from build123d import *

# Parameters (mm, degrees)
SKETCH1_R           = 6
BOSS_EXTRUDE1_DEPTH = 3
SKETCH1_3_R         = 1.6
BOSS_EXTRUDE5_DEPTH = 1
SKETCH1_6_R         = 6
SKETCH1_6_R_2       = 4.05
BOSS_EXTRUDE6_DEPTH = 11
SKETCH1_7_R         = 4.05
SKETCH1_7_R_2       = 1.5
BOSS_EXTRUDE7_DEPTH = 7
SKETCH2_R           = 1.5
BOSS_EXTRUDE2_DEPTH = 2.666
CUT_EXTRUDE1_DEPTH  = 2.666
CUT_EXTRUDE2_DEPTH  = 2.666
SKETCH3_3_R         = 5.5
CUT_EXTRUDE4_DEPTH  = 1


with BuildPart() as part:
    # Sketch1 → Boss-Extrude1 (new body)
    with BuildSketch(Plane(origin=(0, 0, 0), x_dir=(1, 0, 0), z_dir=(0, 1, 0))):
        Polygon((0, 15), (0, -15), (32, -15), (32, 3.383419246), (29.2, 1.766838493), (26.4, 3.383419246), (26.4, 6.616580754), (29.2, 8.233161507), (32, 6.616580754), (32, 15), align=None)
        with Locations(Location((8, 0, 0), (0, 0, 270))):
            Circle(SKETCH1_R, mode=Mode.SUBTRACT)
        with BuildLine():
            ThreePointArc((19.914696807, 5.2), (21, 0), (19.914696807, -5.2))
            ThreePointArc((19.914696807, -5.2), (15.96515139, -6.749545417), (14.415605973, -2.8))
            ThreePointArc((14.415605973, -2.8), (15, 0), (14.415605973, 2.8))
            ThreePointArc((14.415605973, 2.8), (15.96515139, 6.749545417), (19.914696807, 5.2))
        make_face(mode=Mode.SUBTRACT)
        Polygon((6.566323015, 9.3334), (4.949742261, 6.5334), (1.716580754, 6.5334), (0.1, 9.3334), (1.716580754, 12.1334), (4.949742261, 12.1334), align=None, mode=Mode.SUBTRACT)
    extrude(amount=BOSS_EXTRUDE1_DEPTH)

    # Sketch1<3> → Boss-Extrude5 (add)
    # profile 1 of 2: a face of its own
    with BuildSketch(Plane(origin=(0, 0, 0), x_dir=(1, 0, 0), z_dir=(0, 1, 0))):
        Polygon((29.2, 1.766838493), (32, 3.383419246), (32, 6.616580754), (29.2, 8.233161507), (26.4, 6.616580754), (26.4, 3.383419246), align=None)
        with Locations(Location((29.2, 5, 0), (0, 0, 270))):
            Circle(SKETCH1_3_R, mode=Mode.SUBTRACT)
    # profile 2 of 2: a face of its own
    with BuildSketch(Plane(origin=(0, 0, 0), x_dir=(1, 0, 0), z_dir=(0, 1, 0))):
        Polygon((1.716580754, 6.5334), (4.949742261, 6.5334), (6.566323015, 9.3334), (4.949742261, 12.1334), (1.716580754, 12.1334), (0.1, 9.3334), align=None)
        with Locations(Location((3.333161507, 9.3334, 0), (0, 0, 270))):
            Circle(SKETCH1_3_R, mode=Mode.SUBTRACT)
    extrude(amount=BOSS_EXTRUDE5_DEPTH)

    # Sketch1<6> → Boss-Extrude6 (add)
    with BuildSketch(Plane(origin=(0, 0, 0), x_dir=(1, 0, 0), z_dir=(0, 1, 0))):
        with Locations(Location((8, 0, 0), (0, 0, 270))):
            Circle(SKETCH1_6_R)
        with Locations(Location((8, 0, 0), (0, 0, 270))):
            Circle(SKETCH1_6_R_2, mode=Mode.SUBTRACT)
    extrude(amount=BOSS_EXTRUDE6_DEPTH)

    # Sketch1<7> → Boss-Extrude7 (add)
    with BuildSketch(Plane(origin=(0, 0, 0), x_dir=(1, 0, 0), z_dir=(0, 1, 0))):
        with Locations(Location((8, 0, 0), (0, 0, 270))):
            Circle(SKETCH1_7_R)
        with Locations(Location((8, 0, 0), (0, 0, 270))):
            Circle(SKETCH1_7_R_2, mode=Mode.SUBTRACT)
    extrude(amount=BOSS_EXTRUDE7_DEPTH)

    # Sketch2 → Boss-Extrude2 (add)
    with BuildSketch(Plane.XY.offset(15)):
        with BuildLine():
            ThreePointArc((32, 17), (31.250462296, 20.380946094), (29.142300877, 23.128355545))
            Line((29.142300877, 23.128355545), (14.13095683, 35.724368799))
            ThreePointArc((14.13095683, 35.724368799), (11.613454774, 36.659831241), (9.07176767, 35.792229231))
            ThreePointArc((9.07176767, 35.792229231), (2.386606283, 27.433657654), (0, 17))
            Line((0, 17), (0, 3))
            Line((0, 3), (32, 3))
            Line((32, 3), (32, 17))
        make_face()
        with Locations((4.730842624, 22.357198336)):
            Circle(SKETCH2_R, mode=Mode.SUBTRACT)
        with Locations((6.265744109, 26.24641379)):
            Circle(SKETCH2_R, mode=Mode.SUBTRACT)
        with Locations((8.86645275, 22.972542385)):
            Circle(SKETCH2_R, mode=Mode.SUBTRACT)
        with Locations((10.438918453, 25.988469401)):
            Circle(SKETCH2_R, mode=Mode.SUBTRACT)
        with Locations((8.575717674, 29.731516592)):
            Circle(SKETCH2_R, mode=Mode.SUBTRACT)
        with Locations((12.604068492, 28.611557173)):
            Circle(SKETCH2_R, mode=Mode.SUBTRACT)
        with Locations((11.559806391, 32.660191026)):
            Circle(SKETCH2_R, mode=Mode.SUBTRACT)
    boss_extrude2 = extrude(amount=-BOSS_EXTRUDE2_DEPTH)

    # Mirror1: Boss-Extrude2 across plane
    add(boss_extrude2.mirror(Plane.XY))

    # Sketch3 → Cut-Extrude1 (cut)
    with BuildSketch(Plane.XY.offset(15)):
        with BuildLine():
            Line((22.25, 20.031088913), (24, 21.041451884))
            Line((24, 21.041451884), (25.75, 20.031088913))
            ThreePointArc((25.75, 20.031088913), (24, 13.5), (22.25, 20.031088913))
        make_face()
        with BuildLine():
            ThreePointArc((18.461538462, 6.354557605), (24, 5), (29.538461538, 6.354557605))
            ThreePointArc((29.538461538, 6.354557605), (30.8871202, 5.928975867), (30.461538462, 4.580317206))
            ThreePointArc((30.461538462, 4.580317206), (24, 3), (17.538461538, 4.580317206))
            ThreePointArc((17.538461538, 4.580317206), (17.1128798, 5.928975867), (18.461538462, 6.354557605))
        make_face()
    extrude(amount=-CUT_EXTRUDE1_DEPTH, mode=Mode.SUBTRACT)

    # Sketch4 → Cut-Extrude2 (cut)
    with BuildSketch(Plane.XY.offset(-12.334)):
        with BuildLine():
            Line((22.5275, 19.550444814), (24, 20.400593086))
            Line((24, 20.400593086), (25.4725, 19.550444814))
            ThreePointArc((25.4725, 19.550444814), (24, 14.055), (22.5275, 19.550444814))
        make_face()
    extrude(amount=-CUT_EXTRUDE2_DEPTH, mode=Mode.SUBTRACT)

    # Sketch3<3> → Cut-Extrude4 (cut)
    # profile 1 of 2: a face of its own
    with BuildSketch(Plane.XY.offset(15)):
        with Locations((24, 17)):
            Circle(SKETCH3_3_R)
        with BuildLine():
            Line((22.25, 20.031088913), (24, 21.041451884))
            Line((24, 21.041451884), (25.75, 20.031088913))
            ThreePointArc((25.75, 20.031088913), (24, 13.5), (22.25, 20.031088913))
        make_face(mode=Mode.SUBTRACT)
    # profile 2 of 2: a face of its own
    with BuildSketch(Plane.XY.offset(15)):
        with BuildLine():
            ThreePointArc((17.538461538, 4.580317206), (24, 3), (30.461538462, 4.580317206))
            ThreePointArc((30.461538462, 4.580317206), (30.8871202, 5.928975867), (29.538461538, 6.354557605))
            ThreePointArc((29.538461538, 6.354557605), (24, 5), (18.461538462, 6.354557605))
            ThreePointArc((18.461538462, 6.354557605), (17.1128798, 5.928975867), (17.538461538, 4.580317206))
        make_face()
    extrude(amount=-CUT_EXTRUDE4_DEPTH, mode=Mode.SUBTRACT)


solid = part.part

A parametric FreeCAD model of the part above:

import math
import FreeCAD as App
import Part
import Sketcher
from FreeCAD import Vector
Q = App.Units.Quantity

doc = App.newDocument("Part")
body = doc.addObject("PartDesign::Body", "Body")

# Sketch on XZ plane
sketch1 = body.newObject("Sketcher::SketchObject", "Sketch")
sketch1.AttachmentSupport = (doc.getObject("XZ_Plane"), [""])
sketch1.MapMode = "FlatFace"
sketch1.addGeometry([
    Part.LineSegment(Vector(0, -15, 0), Vector(0, 15, 0)),  # 0
    Part.LineSegment(Vector(0, 15, 0), Vector(32, 15, 0)),  # 1
    Part.LineSegment(Vector(32, 15, 0), Vector(32, -3.383419, 0)),  # 2
    Part.LineSegment(Vector(32, -3.383419, 0), Vector(29.2, -1.766838, 0)),  # 3
    Part.LineSegment(Vector(29.2, -1.766838, 0), Vector(26.4, -3.383419, 0)),  # 4
    Part.LineSegment(Vector(26.4, -3.383419, 0), Vector(26.4, -6.616581, 0)),  # 5
    Part.LineSegment(Vector(26.4, -6.616581, 0), Vector(29.2, -8.233162, 0)),  # 6
    Part.LineSegment(Vector(29.2, -8.233162, 0), Vector(32, -6.616581, 0)),  # 7
    Part.LineSegment(Vector(32, -6.616581, 0), Vector(32, -15, 0)),  # 8
    Part.LineSegment(Vector(32, -15, 0), Vector(0, -15, 0)),  # 9
    Part.Circle(Vector(8, 0, 0), Vector(0, 0, 1), 6),  # 10
    Part.ArcOfCircle(Part.Circle(Vector(17.165151, -4, 0), Vector(0, 0, 1), 3), math.radians(156.421822), math.radians(336.421822)),  # 11
    Part.ArcOfCircle(Part.Circle(Vector(8, 0, 0), Vector(0, 0, 1), 13), math.radians(-23.578178), math.radians(23.578178)),  # 12
    Part.ArcOfCircle(Part.Circle(Vector(17.165151, 4, 0), Vector(0, 0, 1), 3), math.radians(23.578178), math.radians(203.578178)),  # 13
    Part.ArcOfCircle(Part.Circle(Vector(8, 0, 0), Vector(0, 0, 1), 7), math.radians(-23.578178), math.radians(23.578178)),  # 14
    Part.LineSegment(Vector(4.949742, -12.1334, 0), Vector(6.566323, -9.3334, 0)),  # 15
    Part.LineSegment(Vector(6.566323, -9.3334, 0), Vector(4.949742, -6.5334, 0)),  # 16
    Part.LineSegment(Vector(4.949742, -6.5334, 0), Vector(1.716581, -6.5334, 0)),  # 17
    Part.LineSegment(Vector(1.716581, -6.5334, 0), Vector(0.1, -9.3334, 0)),  # 18
    Part.LineSegment(Vector(0.1, -9.3334, 0), Vector(1.716581, -12.1334, 0)),  # 19
    Part.LineSegment(Vector(1.716581, -12.1334, 0), Vector(4.949742, -12.1334, 0)),  # 20
], False)
sketch1.addConstraint([
    Sketcher.Constraint("Coincident", 0, 2, 1, 1),
    Sketcher.Constraint("Coincident", 1, 2, 2, 1),
    Sketcher.Constraint("Coincident", 2, 2, 3, 1),
    Sketcher.Constraint("Coincident", 3, 2, 4, 1),
    Sketcher.Constraint("Coincident", 4, 2, 5, 1),
    Sketcher.Constraint("Coincident", 5, 2, 6, 1),
    Sketcher.Constraint("Coincident", 6, 2, 7, 1),
    Sketcher.Constraint("Coincident", 7, 2, 8, 1),
    Sketcher.Constraint("Coincident", 8, 2, 9, 1),
    Sketcher.Constraint("Coincident", 9, 2, 0, 1),
    Sketcher.Constraint("Tangent", 11, 2, 12, 1),
    Sketcher.Constraint("Tangent", 12, 2, 13, 1),
    Sketcher.Constraint("Tangent", 13, 2, 14, 2),
    Sketcher.Constraint("Tangent", 14, 1, 11, 1),
    Sketcher.Constraint("Coincident", 15, 2, 16, 1),
    Sketcher.Constraint("Coincident", 16, 2, 17, 1),
    Sketcher.Constraint("Coincident", 17, 2, 18, 1),
    Sketcher.Constraint("Coincident", 18, 2, 19, 1),
    Sketcher.Constraint("Coincident", 19, 2, 20, 1),
    Sketcher.Constraint("Coincident", 20, 2, 15, 1),
    Sketcher.Constraint("Vertical", 0),
    Sketcher.Constraint("Horizontal", 1),
    Sketcher.Constraint("Vertical", 2),
    Sketcher.Constraint("Vertical", 5),
    Sketcher.Constraint("Vertical", 8),
    Sketcher.Constraint("Horizontal", 9),
    Sketcher.Constraint("Horizontal", 17),
    Sketcher.Constraint("Horizontal", 20),
    Sketcher.Constraint("Coincident", 12, 3, 10, 3),
    Sketcher.Constraint("Coincident", 14, 3, 10, 3),
    Sketcher.Constraint("Symmetric", 0, 2, 9, 2, -1, 1),
    Sketcher.Constraint("Symmetric", 11, 3, 13, 3, -1),
    Sketcher.Constraint("Parallel", 3, 6),
    Sketcher.Constraint("Parallel", 4, 7),
    Sketcher.Constraint("Perpendicular", 6, 15),
    Sketcher.Constraint("Perpendicular", 7, 16),
    Sketcher.Constraint("Parallel", 15, 18),
    Sketcher.Constraint("Parallel", 16, 19),
    Sketcher.Constraint("Horizontal", 2, 2, 4, 2),
    Sketcher.Constraint("Horizontal", 5, 2, 7, 2),
    Sketcher.Constraint("Horizontal", 15, 2, 18, 2),
    Sketcher.Constraint("Vertical", 3, 2, 6, 2),
    Sketcher.Constraint("Vertical", 2, 2, 7, 2),
    Sketcher.Constraint("Vertical", 17, 2, 19, 2),
    Sketcher.Constraint("Equal", 20, 5),
    Sketcher.Constraint("Equal", 7, 15),
    Sketcher.Constraint("Diameter", 10, Q("12 mm")),
    Sketcher.Constraint("Radius", 11, Q("3 mm")),
    Sketcher.Constraint("Radius", 12, Q("13 mm")),
    Sketcher.Constraint("DistanceX", 1, 1, 1, 2, Q("32 mm")),
    Sketcher.Constraint("DistanceY", 0, 1, 0, 2, Q("30 mm")),
    Sketcher.Constraint("Angle", 3, Q("150 deg")),
    Sketcher.Constraint("DistanceX", -1, 1, 10, 3, Q("8 mm")),
    Sketcher.Constraint("DistanceY", 11, 3, -1, 1, Q("4 mm")),
    Sketcher.Constraint("DistanceX", -1, 1, 3, 2, Q("29.2 mm")),
    Sketcher.Constraint("DistanceX", -1, 1, 18, 2, Q("0.1 mm")),
    Sketcher.Constraint("DistanceX", 17, 2, 17, 1, Q("3.233162 mm")),
    Sketcher.Constraint("DistanceY", 2, 2, 2, 1, Q("18.383419 mm")),
    Sketcher.Constraint("DistanceY", 15, 2, -1, 1, Q("9.3334 mm")),
])
pad1 = body.newObject("PartDesign::Pad", "Pad")
pad1.Profile = sketch1
pad1.Length = 3
pad1.Reversed = True

# Sketch on XZ plane
sketch2 = body.newObject("Sketcher::SketchObject", "Sketch001")
sketch2.AttachmentSupport = (doc.getObject("XZ_Plane"), [""])
sketch2.MapMode = "FlatFace"
sketch2.addGeometry([
    Part.LineSegment(Vector(29.2, -1.766838, 0), Vector(32, -3.383419, 0)),  # 0
    Part.LineSegment(Vector(32, -3.383419, 0), Vector(32, -6.616581, 0)),  # 1
    Part.LineSegment(Vector(32, -6.616581, 0), Vector(29.2, -8.233162, 0)),  # 2
    Part.LineSegment(Vector(29.2, -8.233162, 0), Vector(26.4, -6.616581, 0)),  # 3
    Part.LineSegment(Vector(26.4, -6.616581, 0), Vector(26.4, -3.383419, 0)),  # 4
    Part.LineSegment(Vector(26.4, -3.383419, 0), Vector(29.2, -1.766838, 0)),  # 5
    Part.Circle(Vector(29.2, -5, 0), Vector(0, 0, 1), 1.6),  # 6
    Part.LineSegment(Vector(1.716581, -6.5334, 0), Vector(4.949742, -6.5334, 0)),  # 7
    Part.LineSegment(Vector(4.949742, -6.5334, 0), Vector(6.566323, -9.3334, 0)),  # 8
    Part.LineSegment(Vector(6.566323, -9.3334, 0), Vector(4.949742, -12.1334, 0)),  # 9
    Part.LineSegment(Vector(4.949742, -12.1334, 0), Vector(1.716581, -12.1334, 0)),  # 10
    Part.LineSegment(Vector(1.716581, -12.1334, 0), Vector(0.1, -9.3334, 0)),  # 11
    Part.LineSegment(Vector(0.1, -9.3334, 0), Vector(1.716581, -6.5334, 0)),  # 12
    Part.Circle(Vector(3.333162, -9.3334, 0), Vector(0, 0, 1), 1.6),  # 13
], False)
sketch2.addConstraint([
    Sketcher.Constraint("Coincident", 0, 2, 1, 1),
    Sketcher.Constraint("Coincident", 1, 2, 2, 1),
    Sketcher.Constraint("Coincident", 2, 2, 3, 1),
    Sketcher.Constraint("Coincident", 3, 2, 4, 1),
    Sketcher.Constraint("Coincident", 4, 2, 5, 1),
    Sketcher.Constraint("Coincident", 5, 2, 0, 1),
    Sketcher.Constraint("Coincident", 7, 2, 8, 1),
    Sketcher.Constraint("Coincident", 8, 2, 9, 1),
    Sketcher.Constraint("Coincident", 9, 2, 10, 1),
    Sketcher.Constraint("Coincident", 10, 2, 11, 1),
    Sketcher.Constraint("Coincident", 11, 2, 12, 1),
    Sketcher.Constraint("Coincident", 12, 2, 7, 1),
    Sketcher.Constraint("Vertical", 1),
    Sketcher.Constraint("Vertical", 4),
    Sketcher.Constraint("Horizontal", 7),
    Sketcher.Constraint("Horizontal", 10),
    Sketcher.Constraint("Equal", 6, 13),
    Sketcher.Constraint("Parallel", 0, 3),
    Sketcher.Constraint("Parallel", 2, 5),
    Sketcher.Constraint("Perpendicular", 5, 8),
    Sketcher.Constraint("Perpendicular", 3, 9),
    Sketcher.Constraint("Parallel", 8, 11),
    Sketcher.Constraint("Parallel", 9, 12),
    Sketcher.Constraint("Horizontal", 1, 2, 3, 2),
    Sketcher.Constraint("Horizontal", 0, 2, 4, 2),
    Sketcher.Constraint("Horizontal", 13, 3, 8, 2),
    Sketcher.Constraint("Horizontal", 8, 2, 11, 2),
    Sketcher.Constraint("Vertical", 6, 3, 2, 2),
    Sketcher.Constraint("Vertical", 2, 2, 5, 2),
    Sketcher.Constraint("Vertical", 7, 2, 9, 2),
    Sketcher.Constraint("Equal", 10, 1),
    Sketcher.Constraint("Equal", 5, 8),
    Sketcher.Constraint("Diameter", 6, Q("3.2 mm")),
    Sketcher.Constraint("Angle", 0, Q("-30 deg")),
    Sketcher.Constraint("DistanceY", 6, 3, -1, 1, Q("5 mm")),
    Sketcher.Constraint("DistanceX", -1, 1, 0, 2, Q("32 mm")),
    Sketcher.Constraint("DistanceX", -1, 1, 6, 3, Q("29.2 mm")),
    Sketcher.Constraint("DistanceX", -1, 1, 11, 2, Q("0.1 mm")),
    Sketcher.Constraint("DistanceX", 7, 1, 7, 2, Q("3.233162 mm")),
    Sketcher.Constraint("DistanceY", 13, 3, -1, 1, Q("9.3334 mm")),
    Sketcher.Constraint("DistanceX", -1, 1, 13, 3, Q("3.333162 mm")),
    Sketcher.Constraint("DistanceY", 0, 2, -1, 1, Q("3.383419 mm")),
])
pad2 = body.newObject("PartDesign::Pad", "Pad001")
pad2.Profile = sketch2
pad2.Length = 1
pad2.Reversed = True

# Sketch on XZ plane
sketch3 = body.newObject("Sketcher::SketchObject", "Sketch002")
sketch3.AttachmentSupport = (doc.getObject("XZ_Plane"), [""])
sketch3.MapMode = "FlatFace"
sketch3.addGeometry([
    Part.Circle(Vector(8, 0, 0), Vector(0, 0, 1), 6),
    Part.Circle(Vector(8, 0, 0), Vector(0, 0, 1), 4.05),
], False)
sketch3.addConstraint([
    Sketcher.Constraint("Coincident", 1, 3, 0, 3),
    Sketcher.Constraint("PointOnObject", 0, 3, -1),
    Sketcher.Constraint("Diameter", 0, Q("12 mm")),
    Sketcher.Constraint("Diameter", 1, Q("8.1 mm")),
    Sketcher.Constraint("DistanceX", -1, 1, 0, 3, Q("8 mm")),
])
pad3 = body.newObject("PartDesign::Pad", "Pad002")
pad3.Profile = sketch3
pad3.Length = 11
pad3.Reversed = True

# Sketch on XZ plane
sketch4 = body.newObject("Sketcher::SketchObject", "Sketch003")
sketch4.AttachmentSupport = (doc.getObject("XZ_Plane"), [""])
sketch4.MapMode = "FlatFace"
sketch4.addGeometry([
    Part.Circle(Vector(8, 0, 0), Vector(0, 0, 1), 4.05),
    Part.Circle(Vector(8, 0, 0), Vector(0, 0, 1), 1.5),
], False)
sketch4.addConstraint([
    Sketcher.Constraint("Coincident", 1, 3, 0, 3),
    Sketcher.Constraint("PointOnObject", 0, 3, -1),
    Sketcher.Constraint("Diameter", 1, Q("3 mm")),
    Sketcher.Constraint("Diameter", 0, Q("8.1 mm")),
    Sketcher.Constraint("DistanceX", -1, 1, 0, 3, Q("8 mm")),
])
pad4 = body.newObject("PartDesign::Pad", "Pad003")
pad4.Profile = sketch4
pad4.Length = 7
pad4.Reversed = True

# Sketch on XY plane
sketch5 = body.newObject("Sketcher::SketchObject", "Sketch004")
sketch5.AttachmentSupport = (doc.getObject("XY_Plane"), [""])
sketch5.MapMode = "FlatFace"
sketch5.AttachmentOffset = App.Placement(Vector(0, 0, 15), App.Rotation())
sketch5.addGeometry([
    Part.ArcOfCircle(Part.Circle(Vector(24, 17, 0), Vector(0, 0, 1), 8), math.radians(0), math.radians(50)),  # 0
    Part.LineSegment(Vector(29.142301, 23.128356, 0), Vector(14.130957, 35.724369, 0)),  # 1
    Part.ArcOfCircle(Part.Circle(Vector(11.559806, 32.660191, 0), Vector(0, 0, 1), 4), math.radians(50), math.radians(128.463041)),  # 2
    Part.ArcOfCircle(Part.Circle(Vector(24, 17, 0), Vector(0, 0, 1), 24), math.radians(128.463041), math.radians(180)),  # 3
    Part.LineSegment(Vector(0, 17, 0), Vector(0, 3, 0)),  # 4
    Part.LineSegment(Vector(0, 3, 0), Vector(32, 3, 0)),  # 5
    Part.LineSegment(Vector(32, 3, 0), Vector(32, 17, 0)),  # 6
    Part.Circle(Vector(4.730843, 22.357198, 0), Vector(0, 0, 1), 1.5),  # 7
    Part.Circle(Vector(6.265744, 26.246414, 0), Vector(0, 0, 1), 1.5),  # 8
    Part.Circle(Vector(8.866453, 22.972542, 0), Vector(0, 0, 1), 1.5),  # 9
    Part.Circle(Vector(10.438918, 25.988469, 0), Vector(0, 0, 1), 1.5),  # 10
    Part.Circle(Vector(8.575718, 29.731517, 0), Vector(0, 0, 1), 1.5),  # 11
    Part.Circle(Vector(12.604068, 28.611557, 0), Vector(0, 0, 1), 1.5),  # 12
    Part.Circle(Vector(11.559806, 32.660191, 0), Vector(0, 0, 1), 1.5),  # 13
], False)
sketch5.addConstraint([
    Sketcher.Constraint("Tangent", 0, 2, 1, 1),
    Sketcher.Constraint("Tangent", 1, 2, 2, 1),
    Sketcher.Constraint("Tangent", 2, 2, 3, 1),
    Sketcher.Constraint("Tangent", 3, 2, 4, 1),
    Sketcher.Constraint("Coincident", 4, 2, 5, 1),
    Sketcher.Constraint("Coincident", 5, 2, 6, 1),
    Sketcher.Constraint("Tangent", 6, 2, 0, 1),
    Sketcher.Constraint("Vertical", 4),
    Sketcher.Constraint("Horizontal", 5),
    Sketcher.Constraint("Vertical", 6),
    Sketcher.Constraint("Coincident", 3, 3, 0, 3),
    Sketcher.Constraint("Coincident", 13, 3, 2, 3),
    Sketcher.Constraint("Equal", 7, 8),
    Sketcher.Constraint("Equal", 8, 9),
    Sketcher.Constraint("Equal", 9, 10),
    Sketcher.Constraint("Equal", 10, 11),
    Sketcher.Constraint("Equal", 11, 12),
    Sketcher.Constraint("Equal", 12, 13),
    Sketcher.Constraint("PointOnObject", 3, 2, -2),
    Sketcher.Constraint("Diameter", 7, Q("3 mm")),
    Sketcher.Constraint("Radius", 0, Q("8 mm")),
    Sketcher.Constraint("Radius", 2, Q("4 mm")),
    Sketcher.Constraint("Radius", 3, Q("24 mm")),
    Sketcher.Constraint("DistanceY", 4, 2, 4, 1, Q("14 mm")),
    Sketcher.Constraint("Angle", 1, Q("140 deg")),
    Sketcher.Constraint("DistanceY", -1, 1, 0, 3, Q("17 mm")),
    Sketcher.Constraint("DistanceY", -1, 1, 7, 3, Q("22.357198 mm")),
    Sketcher.Constraint("DistanceX", 7, 3, 8, 3, Q("1.534901 mm")),
    Sketcher.Constraint("DistanceX", 11, 3, 10, 3, Q("1.863201 mm")),
    Sketcher.Constraint("DistanceY", 0, 2, 12, 3, Q("5.483202 mm")),
    Sketcher.Constraint("DistanceY", 10, 3, 1, 2, Q("9.735899 mm")),
    Sketcher.Constraint("DistanceX", 2, 2, 12, 3, Q("3.532301 mm")),
    Sketcher.Constraint("DistanceX", -1, 1, 10, 3, Q("10.438918 mm")),
    Sketcher.Constraint("DistanceX", 8, 3, 9, 3, Q("2.600709 mm")),
    Sketcher.Constraint("DistanceY", 9, 3, 8, 3, Q("3.273871 mm")),
    Sketcher.Constraint("DistanceY", 9, 3, 2, 3, Q("9.687649 mm")),
    Sketcher.Constraint("DistanceY", 7, 3, 11, 3, Q("7.374318 mm")),
    Sketcher.Constraint("DistanceX", -1, 1, 7, 3, Q("4.730843 mm")),
])
pad5 = body.newObject("PartDesign::Pad", "Pad004")
pad5.Profile = sketch5
pad5.Length = 2.666
pad5.Reversed = True
doc.recompute()

mirrored = body.newObject("PartDesign::Mirrored", "Mirrored")
mirrored.Originals = [pad5]
mirrored.MirrorPlane = (doc.getObject("XY_Plane"), [""])
body.Tip = mirrored

# Sketch on XY plane
sketch6 = body.newObject("Sketcher::SketchObject", "Sketch005")
sketch6.AttachmentSupport = (doc.getObject("XY_Plane"), [""])
sketch6.MapMode = "FlatFace"
sketch6.AttachmentOffset = App.Placement(Vector(0, 0, 15), App.Rotation())
sketch6.addGeometry([
    Part.LineSegment(Vector(24, 21.041452, 0), Vector(22.25, 20.031089, 0)),  # 0
    Part.ArcOfCircle(Part.Circle(Vector(24, 17, 0), Vector(0, 0, 1), 3.5), math.radians(120), math.radians(420)),  # 1
    Part.LineSegment(Vector(25.75, 20.031089, 0), Vector(24, 21.041452, 0)),  # 2
    Part.ArcOfCircle(Part.Circle(Vector(24, 17, 0), Vector(0, 0, 1), 12), math.radians(-117.486426), math.radians(-62.513574)),  # 3
    Part.ArcOfCircle(Part.Circle(Vector(18, 5.467437, 0), Vector(0, 0, 1), 1), math.radians(62.513574), math.radians(242.513574)),  # 4
    Part.ArcOfCircle(Part.Circle(Vector(24, 17, 0), Vector(0, 0, 1), 14), math.radians(-117.486426), math.radians(-62.513574)),  # 5
    Part.ArcOfCircle(Part.Circle(Vector(30, 5.467437, 0), Vector(0, 0, 1), 1), math.radians(-62.513574), math.radians(117.486426)),  # 6
], False)
sketch6.addConstraint([
    Sketcher.Constraint("Tangent", 0, 2, 1, 1),
    Sketcher.Constraint("Tangent", 1, 2, 2, 1),
    Sketcher.Constraint("Coincident", 2, 2, 0, 1),
    Sketcher.Constraint("Tangent", 3, 1, 4, 1),
    Sketcher.Constraint("Tangent", 4, 2, 5, 1),
    Sketcher.Constraint("Tangent", 5, 2, 6, 1),
    Sketcher.Constraint("Tangent", 6, 2, 3, 2),
    Sketcher.Constraint("Coincident", 3, 3, 1, 3),
    Sketcher.Constraint("Coincident", 5, 3, 1, 3),
    Sketcher.Constraint("Horizontal", 4, 3, 6, 3),
    Sketcher.Constraint("Horizontal", 0, 2, 1, 2),
    Sketcher.Constraint("Radius", 3, Q("12 mm")),
    Sketcher.Constraint("Radius", 4, Q("1 mm")),
    Sketcher.Constraint("Radius", 1, Q("3.5 mm")),
    Sketcher.Constraint("Angle", 0, Q("-150 deg")),
    Sketcher.Constraint("DistanceX", -1, 1, 1, 3, Q("24 mm")),
    Sketcher.Constraint("DistanceY", -1, 1, 1, 3, Q("17 mm")),
    Sketcher.Constraint("DistanceX", -1, 1, 4, 3, Q("18 mm")),
])
pocket1 = body.newObject("PartDesign::Pocket", "Pocket")
pocket1.Profile = sketch6
pocket1.Length = 2.666

# Sketch on XY plane
sketch7 = body.newObject("Sketcher::SketchObject", "Sketch006")
sketch7.AttachmentSupport = (doc.getObject("XY_Plane"), [""])
sketch7.MapMode = "FlatFace"
sketch7.AttachmentOffset = App.Placement(Vector(0, 0, -12.334), App.Rotation())
sketch7.addGeometry([
    Part.LineSegment(Vector(24, 20.400593, 0), Vector(22.5275, 19.550445, 0)),
    Part.ArcOfCircle(Part.Circle(Vector(24, 17, 0), Vector(0, 0, 1), 2.945), math.radians(120), math.radians(420)),
    Part.LineSegment(Vector(25.4725, 19.550445, 0), Vector(24, 20.400593, 0)),
], False)
sketch7.addConstraint([
    Sketcher.Constraint("Tangent", 0, 2, 1, 1),
    Sketcher.Constraint("Tangent", 1, 2, 2, 1),
    Sketcher.Constraint("Coincident", 2, 2, 0, 1),
    Sketcher.Constraint("Horizontal", 0, 2, 1, 2),
    Sketcher.Constraint("Angle", 0, Q("-150 deg")),
    Sketcher.Constraint("DistanceX", -1, 1, 1, 3, Q("24 mm")),
    Sketcher.Constraint("DistanceY", -1, 1, 1, 3, Q("17 mm")),
    Sketcher.Constraint("Radius", 1, Q("2.945 mm")),
])
pocket2 = body.newObject("PartDesign::Pocket", "Pocket001")
pocket2.Profile = sketch7
pocket2.Length = 2.666

# Sketch on XY plane
sketch8 = body.newObject("Sketcher::SketchObject", "Sketch007")
sketch8.AttachmentSupport = (doc.getObject("XY_Plane"), [""])
sketch8.MapMode = "FlatFace"
sketch8.AttachmentOffset = App.Placement(Vector(0, 0, 15), App.Rotation())
sketch8.addGeometry([
    Part.Circle(Vector(24, 17, 0), Vector(0, 0, 1), 5.5),  # 0
    Part.ArcOfCircle(Part.Circle(Vector(24, 17, 0), Vector(0, 0, 1), 3.5), math.radians(120), math.radians(420)),  # 1
    Part.LineSegment(Vector(22.25, 20.031089, 0), Vector(24, 21.041452, 0)),  # 2
    Part.LineSegment(Vector(24, 21.041452, 0), Vector(25.75, 20.031089, 0)),  # 3
    Part.ArcOfCircle(Part.Circle(Vector(24, 17, 0), Vector(0, 0, 1), 14), math.radians(-117.486426), math.radians(-62.513574)),  # 4
    Part.ArcOfCircle(Part.Circle(Vector(30, 5.467437, 0), Vector(0, 0, 1), 1), math.radians(-62.513574), math.radians(117.486426)),  # 5
    Part.ArcOfCircle(Part.Circle(Vector(24, 17, 0), Vector(0, 0, 1), 12), math.radians(-117.486426), math.radians(-62.513574)),  # 6
    Part.ArcOfCircle(Part.Circle(Vector(18, 5.467437, 0), Vector(0, 0, 1), 1), math.radians(62.513574), math.radians(242.513574)),  # 7
], False)
sketch8.addConstraint([
    Sketcher.Constraint("Tangent", 1, 1, 2, 1),
    Sketcher.Constraint("Coincident", 2, 2, 3, 1),
    Sketcher.Constraint("Tangent", 3, 2, 1, 2),
    Sketcher.Constraint("Tangent", 4, 2, 5, 1),
    Sketcher.Constraint("Tangent", 5, 2, 6, 2),
    Sketcher.Constraint("Tangent", 6, 1, 7, 1),
    Sketcher.Constraint("Tangent", 7, 2, 4, 1),
    Sketcher.Constraint("Coincident", 1, 3, 0, 3),
    Sketcher.Constraint("Coincident", 4, 3, 0, 3),
    Sketcher.Constraint("Coincident", 6, 3, 0, 3),
    Sketcher.Constraint("Horizontal", 5, 3, 7, 3),
    Sketcher.Constraint("Horizontal", 1, 1, 3, 2),
    Sketcher.Constraint("Diameter", 0, Q("11 mm")),
    Sketcher.Constraint("Radius", 4, Q("14 mm")),
    Sketcher.Constraint("Radius", 5, Q("1 mm")),
    Sketcher.Constraint("Radius", 1, Q("3.5 mm")),
    Sketcher.Constraint("Angle", 2, Q("30 deg")),
    Sketcher.Constraint("DistanceX", -1, 1, 0, 3, Q("24 mm")),
    Sketcher.Constraint("DistanceY", -1, 1, 0, 3, Q("17 mm")),
    Sketcher.Constraint("DistanceX", -1, 1, 5, 3, Q("30 mm")),
])
pocket3 = body.newObject("PartDesign::Pocket", "Pocket002")
pocket3.Profile = sketch8
pocket3.Length = 1

doc.recompute()
